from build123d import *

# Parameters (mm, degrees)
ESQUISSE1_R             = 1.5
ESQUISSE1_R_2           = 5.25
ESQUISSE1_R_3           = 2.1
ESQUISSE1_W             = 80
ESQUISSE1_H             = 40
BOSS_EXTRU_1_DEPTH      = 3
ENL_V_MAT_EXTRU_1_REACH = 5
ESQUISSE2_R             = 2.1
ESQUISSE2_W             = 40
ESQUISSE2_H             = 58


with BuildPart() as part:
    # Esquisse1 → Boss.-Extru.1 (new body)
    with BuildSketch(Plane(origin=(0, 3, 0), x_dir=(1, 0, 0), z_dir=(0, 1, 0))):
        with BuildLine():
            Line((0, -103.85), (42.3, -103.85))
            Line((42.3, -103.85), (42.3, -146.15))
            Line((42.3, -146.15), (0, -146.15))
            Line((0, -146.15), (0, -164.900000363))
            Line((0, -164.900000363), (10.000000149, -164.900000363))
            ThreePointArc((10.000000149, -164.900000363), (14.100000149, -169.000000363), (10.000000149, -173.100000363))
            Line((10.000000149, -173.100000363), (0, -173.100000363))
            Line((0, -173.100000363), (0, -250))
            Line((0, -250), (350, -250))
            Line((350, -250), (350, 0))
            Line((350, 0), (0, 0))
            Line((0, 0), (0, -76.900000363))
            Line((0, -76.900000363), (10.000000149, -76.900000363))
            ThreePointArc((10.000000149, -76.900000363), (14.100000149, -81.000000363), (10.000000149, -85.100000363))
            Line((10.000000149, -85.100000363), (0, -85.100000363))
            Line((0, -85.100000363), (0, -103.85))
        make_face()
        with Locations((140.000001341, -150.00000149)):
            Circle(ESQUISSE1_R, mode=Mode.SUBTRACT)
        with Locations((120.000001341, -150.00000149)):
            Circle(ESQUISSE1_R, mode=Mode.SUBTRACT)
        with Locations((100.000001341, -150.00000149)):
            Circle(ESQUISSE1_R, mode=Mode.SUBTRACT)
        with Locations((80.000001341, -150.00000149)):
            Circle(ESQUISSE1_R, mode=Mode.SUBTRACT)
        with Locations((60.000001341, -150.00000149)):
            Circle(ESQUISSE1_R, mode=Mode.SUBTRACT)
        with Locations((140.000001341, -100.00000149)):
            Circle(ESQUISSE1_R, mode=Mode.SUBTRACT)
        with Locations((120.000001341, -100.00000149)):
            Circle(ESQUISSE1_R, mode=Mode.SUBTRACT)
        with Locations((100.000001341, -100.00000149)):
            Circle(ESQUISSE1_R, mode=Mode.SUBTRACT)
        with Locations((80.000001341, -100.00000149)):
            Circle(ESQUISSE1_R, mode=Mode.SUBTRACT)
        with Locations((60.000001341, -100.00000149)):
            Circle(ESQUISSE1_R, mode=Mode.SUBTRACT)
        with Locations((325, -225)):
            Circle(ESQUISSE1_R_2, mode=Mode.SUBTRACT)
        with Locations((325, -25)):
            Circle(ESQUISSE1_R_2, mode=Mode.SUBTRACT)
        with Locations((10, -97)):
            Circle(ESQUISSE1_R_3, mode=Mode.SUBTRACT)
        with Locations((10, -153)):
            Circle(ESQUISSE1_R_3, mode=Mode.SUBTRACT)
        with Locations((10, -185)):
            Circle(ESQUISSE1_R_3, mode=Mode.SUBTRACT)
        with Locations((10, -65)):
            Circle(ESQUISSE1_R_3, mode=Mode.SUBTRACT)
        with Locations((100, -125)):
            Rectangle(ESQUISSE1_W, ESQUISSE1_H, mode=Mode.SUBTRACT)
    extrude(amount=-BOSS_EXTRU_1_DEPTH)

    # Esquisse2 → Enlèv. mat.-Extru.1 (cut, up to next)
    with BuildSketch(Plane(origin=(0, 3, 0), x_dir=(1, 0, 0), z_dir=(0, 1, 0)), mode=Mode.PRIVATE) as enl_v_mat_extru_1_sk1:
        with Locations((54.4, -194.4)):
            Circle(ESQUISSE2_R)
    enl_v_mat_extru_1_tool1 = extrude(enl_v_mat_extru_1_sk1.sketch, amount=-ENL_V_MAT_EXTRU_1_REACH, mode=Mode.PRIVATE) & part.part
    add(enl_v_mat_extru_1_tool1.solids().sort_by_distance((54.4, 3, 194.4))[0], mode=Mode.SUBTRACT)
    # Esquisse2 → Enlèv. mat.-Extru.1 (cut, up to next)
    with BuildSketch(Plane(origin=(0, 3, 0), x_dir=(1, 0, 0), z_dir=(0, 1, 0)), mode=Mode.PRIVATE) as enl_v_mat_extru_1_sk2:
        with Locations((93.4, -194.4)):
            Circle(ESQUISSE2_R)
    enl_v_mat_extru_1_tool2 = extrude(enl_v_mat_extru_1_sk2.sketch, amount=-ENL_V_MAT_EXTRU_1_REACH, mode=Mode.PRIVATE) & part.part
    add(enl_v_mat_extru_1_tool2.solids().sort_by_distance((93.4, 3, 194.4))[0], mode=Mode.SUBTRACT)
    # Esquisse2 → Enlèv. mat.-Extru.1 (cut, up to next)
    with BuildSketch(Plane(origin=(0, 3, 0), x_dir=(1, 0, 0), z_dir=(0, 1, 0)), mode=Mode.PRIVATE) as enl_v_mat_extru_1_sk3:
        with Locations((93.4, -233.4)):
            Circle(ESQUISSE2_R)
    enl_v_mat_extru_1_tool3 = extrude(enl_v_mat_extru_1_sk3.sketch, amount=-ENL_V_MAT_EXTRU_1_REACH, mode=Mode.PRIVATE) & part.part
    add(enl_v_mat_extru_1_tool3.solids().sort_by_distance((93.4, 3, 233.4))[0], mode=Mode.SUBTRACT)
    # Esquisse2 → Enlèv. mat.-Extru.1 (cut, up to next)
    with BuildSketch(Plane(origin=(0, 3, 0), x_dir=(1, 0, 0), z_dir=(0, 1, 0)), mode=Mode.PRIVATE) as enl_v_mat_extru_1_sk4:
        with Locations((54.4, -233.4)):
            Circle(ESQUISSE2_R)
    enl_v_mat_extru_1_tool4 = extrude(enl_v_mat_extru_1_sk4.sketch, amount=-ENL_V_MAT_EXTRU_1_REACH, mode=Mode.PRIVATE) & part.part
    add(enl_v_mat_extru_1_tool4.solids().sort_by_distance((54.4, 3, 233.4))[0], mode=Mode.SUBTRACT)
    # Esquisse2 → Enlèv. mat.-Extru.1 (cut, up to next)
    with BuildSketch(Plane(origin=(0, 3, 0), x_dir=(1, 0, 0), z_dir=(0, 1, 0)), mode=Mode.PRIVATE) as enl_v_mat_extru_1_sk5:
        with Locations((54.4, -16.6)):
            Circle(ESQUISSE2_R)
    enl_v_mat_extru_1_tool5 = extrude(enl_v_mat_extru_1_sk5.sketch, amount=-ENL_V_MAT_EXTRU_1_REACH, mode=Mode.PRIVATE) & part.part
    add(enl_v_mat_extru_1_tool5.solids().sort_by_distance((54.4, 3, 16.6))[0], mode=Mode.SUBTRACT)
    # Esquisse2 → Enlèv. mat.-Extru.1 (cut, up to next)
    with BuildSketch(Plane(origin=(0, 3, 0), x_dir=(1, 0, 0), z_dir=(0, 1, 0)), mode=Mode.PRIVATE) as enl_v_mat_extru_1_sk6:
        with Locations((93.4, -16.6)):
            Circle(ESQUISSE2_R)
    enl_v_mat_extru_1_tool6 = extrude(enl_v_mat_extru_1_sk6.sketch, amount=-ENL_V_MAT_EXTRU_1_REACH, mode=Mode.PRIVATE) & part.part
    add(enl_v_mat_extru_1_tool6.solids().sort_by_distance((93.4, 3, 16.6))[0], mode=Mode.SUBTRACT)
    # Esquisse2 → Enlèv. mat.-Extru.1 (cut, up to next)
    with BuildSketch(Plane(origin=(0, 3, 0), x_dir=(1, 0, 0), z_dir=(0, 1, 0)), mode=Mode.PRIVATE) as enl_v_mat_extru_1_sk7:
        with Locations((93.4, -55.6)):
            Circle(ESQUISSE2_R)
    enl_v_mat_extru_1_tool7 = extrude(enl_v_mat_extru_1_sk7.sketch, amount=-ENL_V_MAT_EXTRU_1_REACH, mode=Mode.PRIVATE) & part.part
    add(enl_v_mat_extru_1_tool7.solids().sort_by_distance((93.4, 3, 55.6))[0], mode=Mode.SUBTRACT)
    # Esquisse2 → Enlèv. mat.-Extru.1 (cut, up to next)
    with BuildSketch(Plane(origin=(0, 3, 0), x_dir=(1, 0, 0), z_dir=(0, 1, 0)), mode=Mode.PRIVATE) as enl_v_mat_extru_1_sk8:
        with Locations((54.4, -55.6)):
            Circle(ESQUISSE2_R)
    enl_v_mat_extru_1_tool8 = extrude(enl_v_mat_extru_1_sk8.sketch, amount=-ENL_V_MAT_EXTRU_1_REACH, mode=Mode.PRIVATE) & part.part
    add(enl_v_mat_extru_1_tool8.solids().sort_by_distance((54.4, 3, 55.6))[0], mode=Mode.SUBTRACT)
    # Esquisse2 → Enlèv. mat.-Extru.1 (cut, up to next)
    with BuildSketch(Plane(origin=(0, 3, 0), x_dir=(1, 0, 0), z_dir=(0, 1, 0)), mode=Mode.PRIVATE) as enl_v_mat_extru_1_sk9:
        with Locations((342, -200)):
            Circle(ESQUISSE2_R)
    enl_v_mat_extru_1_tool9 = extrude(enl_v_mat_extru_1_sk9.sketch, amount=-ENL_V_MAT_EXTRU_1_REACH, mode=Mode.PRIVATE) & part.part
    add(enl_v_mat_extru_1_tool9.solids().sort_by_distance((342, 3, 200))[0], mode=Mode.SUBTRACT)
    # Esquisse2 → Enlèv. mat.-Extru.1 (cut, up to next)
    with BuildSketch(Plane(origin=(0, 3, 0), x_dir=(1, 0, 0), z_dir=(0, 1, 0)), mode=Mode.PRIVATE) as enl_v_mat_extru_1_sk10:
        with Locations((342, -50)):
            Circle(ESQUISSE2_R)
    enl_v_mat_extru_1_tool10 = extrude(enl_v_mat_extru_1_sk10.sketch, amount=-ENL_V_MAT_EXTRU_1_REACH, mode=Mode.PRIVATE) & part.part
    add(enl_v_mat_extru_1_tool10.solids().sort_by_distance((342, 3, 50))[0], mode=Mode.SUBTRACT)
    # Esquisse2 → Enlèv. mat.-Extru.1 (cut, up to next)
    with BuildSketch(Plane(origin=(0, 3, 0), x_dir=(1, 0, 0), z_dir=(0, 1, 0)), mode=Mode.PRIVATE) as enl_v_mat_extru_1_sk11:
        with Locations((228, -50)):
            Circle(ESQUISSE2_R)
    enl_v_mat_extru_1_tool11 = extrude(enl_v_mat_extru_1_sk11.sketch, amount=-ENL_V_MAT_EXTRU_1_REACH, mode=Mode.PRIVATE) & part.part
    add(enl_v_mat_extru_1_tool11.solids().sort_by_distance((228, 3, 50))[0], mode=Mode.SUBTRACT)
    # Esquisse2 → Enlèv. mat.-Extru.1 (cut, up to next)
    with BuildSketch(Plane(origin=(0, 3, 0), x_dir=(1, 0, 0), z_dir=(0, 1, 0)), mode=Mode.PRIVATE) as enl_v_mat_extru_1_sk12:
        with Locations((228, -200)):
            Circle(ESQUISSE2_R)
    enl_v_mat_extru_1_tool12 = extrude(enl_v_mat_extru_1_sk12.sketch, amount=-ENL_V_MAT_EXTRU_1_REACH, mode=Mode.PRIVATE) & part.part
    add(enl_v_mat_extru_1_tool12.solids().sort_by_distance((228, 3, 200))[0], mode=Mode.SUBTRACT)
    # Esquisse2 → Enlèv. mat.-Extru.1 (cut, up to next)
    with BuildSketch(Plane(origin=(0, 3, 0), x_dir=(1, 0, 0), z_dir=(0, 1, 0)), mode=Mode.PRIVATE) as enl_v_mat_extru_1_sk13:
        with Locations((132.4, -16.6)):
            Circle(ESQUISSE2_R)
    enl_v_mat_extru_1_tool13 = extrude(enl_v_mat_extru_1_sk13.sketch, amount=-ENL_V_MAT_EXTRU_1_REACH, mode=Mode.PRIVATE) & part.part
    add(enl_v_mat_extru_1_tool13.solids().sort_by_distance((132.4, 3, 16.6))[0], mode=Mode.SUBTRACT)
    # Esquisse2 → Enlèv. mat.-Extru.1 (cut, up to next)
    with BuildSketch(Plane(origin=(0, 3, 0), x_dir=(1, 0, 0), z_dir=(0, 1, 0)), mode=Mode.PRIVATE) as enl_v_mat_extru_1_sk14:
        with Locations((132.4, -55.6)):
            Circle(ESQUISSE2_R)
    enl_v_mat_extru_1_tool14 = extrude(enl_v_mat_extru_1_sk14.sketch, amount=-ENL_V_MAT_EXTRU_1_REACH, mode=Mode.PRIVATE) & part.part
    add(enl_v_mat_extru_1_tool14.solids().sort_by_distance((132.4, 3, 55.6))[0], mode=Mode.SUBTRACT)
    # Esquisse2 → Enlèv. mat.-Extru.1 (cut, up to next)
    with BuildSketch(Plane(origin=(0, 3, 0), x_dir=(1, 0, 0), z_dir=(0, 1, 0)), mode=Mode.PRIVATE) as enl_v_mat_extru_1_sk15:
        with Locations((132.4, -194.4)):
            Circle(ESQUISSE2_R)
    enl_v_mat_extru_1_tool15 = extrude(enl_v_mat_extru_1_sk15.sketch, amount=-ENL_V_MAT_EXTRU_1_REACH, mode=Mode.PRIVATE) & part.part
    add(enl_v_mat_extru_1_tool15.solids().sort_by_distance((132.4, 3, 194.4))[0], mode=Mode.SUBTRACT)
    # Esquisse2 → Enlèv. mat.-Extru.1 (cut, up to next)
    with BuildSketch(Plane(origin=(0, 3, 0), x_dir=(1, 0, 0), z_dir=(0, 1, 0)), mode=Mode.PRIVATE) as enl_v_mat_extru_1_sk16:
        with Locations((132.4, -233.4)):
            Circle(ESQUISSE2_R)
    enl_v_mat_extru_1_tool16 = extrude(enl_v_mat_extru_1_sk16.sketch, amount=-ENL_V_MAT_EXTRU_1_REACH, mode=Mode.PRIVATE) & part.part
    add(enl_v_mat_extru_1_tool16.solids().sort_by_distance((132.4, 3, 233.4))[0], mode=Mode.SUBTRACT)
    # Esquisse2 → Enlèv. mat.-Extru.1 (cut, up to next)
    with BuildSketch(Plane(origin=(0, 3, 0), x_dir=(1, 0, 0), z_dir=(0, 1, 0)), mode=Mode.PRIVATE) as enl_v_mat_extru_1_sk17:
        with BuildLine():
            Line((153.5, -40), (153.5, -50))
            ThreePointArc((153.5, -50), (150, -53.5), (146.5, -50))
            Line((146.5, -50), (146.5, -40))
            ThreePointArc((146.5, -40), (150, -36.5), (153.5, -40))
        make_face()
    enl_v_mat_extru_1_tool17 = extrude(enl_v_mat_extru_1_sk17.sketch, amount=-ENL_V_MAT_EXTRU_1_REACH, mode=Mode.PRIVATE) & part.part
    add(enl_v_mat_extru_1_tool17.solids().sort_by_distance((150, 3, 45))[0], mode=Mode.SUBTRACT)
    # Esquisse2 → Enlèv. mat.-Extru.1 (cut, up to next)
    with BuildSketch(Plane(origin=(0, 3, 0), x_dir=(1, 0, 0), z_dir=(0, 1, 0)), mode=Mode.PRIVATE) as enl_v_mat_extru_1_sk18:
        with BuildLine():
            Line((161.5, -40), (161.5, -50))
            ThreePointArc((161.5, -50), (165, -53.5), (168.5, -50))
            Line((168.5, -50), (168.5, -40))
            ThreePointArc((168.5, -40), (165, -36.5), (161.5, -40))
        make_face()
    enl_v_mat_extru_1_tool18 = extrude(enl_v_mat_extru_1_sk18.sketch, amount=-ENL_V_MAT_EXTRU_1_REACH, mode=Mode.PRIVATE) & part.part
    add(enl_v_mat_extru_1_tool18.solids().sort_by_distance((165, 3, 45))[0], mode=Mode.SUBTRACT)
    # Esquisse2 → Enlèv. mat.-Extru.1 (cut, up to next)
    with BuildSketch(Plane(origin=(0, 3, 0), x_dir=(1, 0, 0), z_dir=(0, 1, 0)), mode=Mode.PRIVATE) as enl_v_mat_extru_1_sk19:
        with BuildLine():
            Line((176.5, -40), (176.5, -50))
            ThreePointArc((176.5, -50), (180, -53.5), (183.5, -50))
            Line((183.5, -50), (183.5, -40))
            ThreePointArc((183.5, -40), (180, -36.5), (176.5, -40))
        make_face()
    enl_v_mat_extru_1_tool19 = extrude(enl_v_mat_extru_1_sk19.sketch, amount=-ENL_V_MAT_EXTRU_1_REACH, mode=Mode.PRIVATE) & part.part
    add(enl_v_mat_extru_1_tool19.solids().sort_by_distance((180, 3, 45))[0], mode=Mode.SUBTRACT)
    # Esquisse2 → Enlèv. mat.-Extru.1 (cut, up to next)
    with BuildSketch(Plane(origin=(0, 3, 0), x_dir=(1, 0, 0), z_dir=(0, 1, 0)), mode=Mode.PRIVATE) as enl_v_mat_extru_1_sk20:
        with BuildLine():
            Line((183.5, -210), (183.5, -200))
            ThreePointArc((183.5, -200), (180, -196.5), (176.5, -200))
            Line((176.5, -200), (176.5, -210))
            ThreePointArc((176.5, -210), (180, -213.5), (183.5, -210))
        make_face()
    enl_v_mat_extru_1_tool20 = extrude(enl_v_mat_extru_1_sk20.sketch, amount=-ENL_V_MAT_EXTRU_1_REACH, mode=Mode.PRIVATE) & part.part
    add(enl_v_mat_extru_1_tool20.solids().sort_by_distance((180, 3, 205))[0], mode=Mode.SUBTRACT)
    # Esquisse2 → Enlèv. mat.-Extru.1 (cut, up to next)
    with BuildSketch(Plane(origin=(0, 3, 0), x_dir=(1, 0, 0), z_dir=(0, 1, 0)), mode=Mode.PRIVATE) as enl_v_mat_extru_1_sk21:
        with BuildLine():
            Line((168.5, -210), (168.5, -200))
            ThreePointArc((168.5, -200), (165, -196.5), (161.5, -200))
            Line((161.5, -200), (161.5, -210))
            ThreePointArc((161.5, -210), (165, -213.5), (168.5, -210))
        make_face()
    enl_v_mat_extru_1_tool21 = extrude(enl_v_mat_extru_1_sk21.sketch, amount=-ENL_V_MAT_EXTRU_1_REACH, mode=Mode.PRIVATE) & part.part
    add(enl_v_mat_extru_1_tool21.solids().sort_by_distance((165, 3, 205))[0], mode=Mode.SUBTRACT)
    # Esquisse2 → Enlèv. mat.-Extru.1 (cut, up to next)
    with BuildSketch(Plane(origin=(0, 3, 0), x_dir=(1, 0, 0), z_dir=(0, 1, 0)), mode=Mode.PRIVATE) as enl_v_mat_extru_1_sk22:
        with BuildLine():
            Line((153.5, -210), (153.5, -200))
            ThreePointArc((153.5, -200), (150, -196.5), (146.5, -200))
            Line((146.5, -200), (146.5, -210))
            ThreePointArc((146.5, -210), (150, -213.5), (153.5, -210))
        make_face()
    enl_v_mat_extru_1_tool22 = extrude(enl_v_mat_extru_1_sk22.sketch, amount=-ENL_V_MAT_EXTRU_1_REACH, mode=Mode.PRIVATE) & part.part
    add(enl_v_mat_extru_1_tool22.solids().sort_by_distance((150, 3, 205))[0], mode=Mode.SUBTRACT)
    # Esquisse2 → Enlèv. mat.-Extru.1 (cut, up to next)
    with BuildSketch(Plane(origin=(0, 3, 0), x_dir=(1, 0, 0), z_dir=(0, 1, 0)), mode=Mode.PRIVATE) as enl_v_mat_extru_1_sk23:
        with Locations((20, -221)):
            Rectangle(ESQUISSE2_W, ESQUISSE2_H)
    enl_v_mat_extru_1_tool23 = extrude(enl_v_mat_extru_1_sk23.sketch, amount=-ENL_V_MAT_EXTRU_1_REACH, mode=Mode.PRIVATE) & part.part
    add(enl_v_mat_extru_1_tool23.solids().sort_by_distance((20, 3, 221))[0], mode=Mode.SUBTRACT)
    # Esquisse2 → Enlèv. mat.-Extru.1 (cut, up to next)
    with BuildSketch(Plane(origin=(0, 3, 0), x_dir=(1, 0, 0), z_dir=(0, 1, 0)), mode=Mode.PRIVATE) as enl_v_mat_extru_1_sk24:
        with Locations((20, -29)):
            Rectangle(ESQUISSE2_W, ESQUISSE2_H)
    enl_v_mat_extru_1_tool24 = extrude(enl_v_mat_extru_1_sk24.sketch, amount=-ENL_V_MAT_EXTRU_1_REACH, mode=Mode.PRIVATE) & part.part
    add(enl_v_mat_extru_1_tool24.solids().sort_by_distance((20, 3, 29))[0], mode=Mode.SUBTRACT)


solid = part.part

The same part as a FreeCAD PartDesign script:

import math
import FreeCAD as App
import Part
import Sketcher

doc = App.newDocument("Part")
body = doc.addObject("PartDesign::Body", "Body")

# Sketch on XZ plane
sketch1 = body.newObject("Sketcher::SketchObject", "Sketch")
sketch1.AttachmentSupport = (doc.getObject("XZ_Plane"), [""])
sketch1.MapMode = "FlatFace"
sketch1.AttachmentOffset = App.Placement(App.Vector(0, 0, -3), App.Rotation())
sketch1.addGeometry([
    Part.LineSegment(App.Vector(0, 103.8, 0), App.Vector(42.3, 103.8, 0)),  # 0
    Part.LineSegment(App.Vector(42.3, 103.8, 0), App.Vector(42.3, 146.2, 0)),  # 1
    Part.LineSegment(App.Vector(42.3, 146.2, 0), App.Vector(0, 146.2, 0)),  # 2
    Part.LineSegment(App.Vector(0, 146.2, 0), App.Vector(0, 164.9, 0)),  # 3
    Part.LineSegment(App.Vector(0, 164.9, 0), App.Vector(10, 164.9, 0)),  # 4
    Part.ArcOfCircle(Part.Circle(App.Vector(10, 169, 0), App.Vector(0, 0, 1), 4.1), math.radians(-90), math.radians(90)),  # 5
    Part.LineSegment(App.Vector(10, 173.1, 0), App.Vector(0, 173.1, 0)),  # 6
    Part.LineSegment(App.Vector(0, 173.1, 0), App.Vector(0, 250, 0)),  # 7
    Part.LineSegment(App.Vector(0, 250, 0), App.Vector(350, 250, 0)),  # 8
    Part.LineSegment(App.Vector(350, 250, 0), App.Vector(350, 0, 0)),  # 9
    Part.LineSegment(App.Vector(350, 0, 0), App.Vector(0, 0, 0)),  # 10
    Part.LineSegment(App.Vector(0, 0, 0), App.Vector(0, 76.9, 0)),  # 11
    Part.LineSegment(App.Vector(0, 76.9, 0), App.Vector(10, 76.9, 0)),  # 12
    Part.ArcOfCircle(Part.Circle(App.Vector(10, 81, 0), App.Vector(0, 0, 1), 4.1), math.radians(-90), math.radians(90)),  # 13
    Part.LineSegment(App.Vector(10, 85.1, 0), App.Vector(0, 85.1, 0)),  # 14
    Part.LineSegment(App.Vector(0, 85.1, 0), App.Vector(0, 103.8, 0)),  # 15
    Part.Circle(App.Vector(10, 185, 0), App.Vector(0, 0, 1), 2.1),  # 16
    Part.Circle(App.Vector(10, 153, 0), App.Vector(0, 0, 1), 2.1),  # 17
    Part.Circle(App.Vector(60, 150, 0), App.Vector(0, 0, 1), 1.5),  # 18
    Part.Circle(App.Vector(80, 150, 0), App.Vector(0, 0, 1), 1.5),  # 19
    Part.Circle(App.Vector(100, 150, 0), App.Vector(0, 0, 1), 1.5),  # 20
    Part.Circle(App.Vector(120, 150, 0), App.Vector(0, 0, 1), 1.5),  # 21
    Part.Circle(App.Vector(140, 150, 0), App.Vector(0, 0, 1), 1.5),  # 22
    Part.Circle(App.Vector(325, 225, 0), App.Vector(0, 0, 1), 5.2),  # 23
    Part.Circle(App.Vector(60, 100, 0), App.Vector(0, 0, 1), 1.5),  # 24
    Part.Circle(App.Vector(80, 100, 0), App.Vector(0, 0, 1), 1.5),  # 25
    Part.Circle(App.Vector(10, 97, 0), App.Vector(0, 0, 1), 2.1),  # 26
    Part.LineSegment(App.Vector(140, 145, 0), App.Vector(60, 145, 0)),  # 27
    Part.LineSegment(App.Vector(60, 145, 0), App.Vector(60, 105, 0)),  # 28
    Part.LineSegment(App.Vector(60, 105, 0), App.Vector(140, 105, 0)),  # 29
    Part.LineSegment(App.Vector(140, 105, 0), App.Vector(140, 145, 0)),  # 30
    Part.Circle(App.Vector(100, 100, 0), App.Vector(0, 0, 1), 1.5),  # 31
    Part.Circle(App.Vector(120, 100, 0), App.Vector(0, 0, 1), 1.5),  # 32
    Part.Circle(App.Vector(140, 100, 0), App.Vector(0, 0, 1), 1.5),  # 33
    Part.Circle(App.Vector(10, 65, 0), App.Vector(0, 0, 1), 2.1),  # 34
    Part.Circle(App.Vector(325, 25, 0), App.Vector(0, 0, 1), 5.2),  # 35
], False)
sketch1.addConstraint([
    Sketcher.Constraint("Coincident", 0, 2, 1, 1),
    Sketcher.Constraint("Coincident", 1, 2, 2, 1),
    Sketcher.Constraint("Coincident", 2, 2, 3, 1),
    Sketcher.Constraint("Coincident", 3, 2, 4, 1),
    Sketcher.Constraint("Tangent", 4, 2, 5, 1),
    Sketcher.Constraint("Tangent", 5, 2, 6, 1),
    Sketcher.Constraint("Coincident", 6, 2, 7, 1),
    Sketcher.Constraint("Coincident", 7, 2, 8, 1),
    Sketcher.Constraint("Coincident", 8, 2, 9, 1),
    Sketcher.Constraint("Coincident", 9, 2, 10, 1),
    Sketcher.Constraint("Coincident", 10, 2, 11, 1),
    Sketcher.Constraint("Coincident", 11, 2, 12, 1),
    Sketcher.Constraint("Tangent", 12, 2, 13, 1),
    Sketcher.Constraint("Tangent", 13, 2, 14, 1),
    Sketcher.Constraint("Coincident", 14, 2, 15, 1),
    Sketcher.Constraint("Coincident", 15, 2, 0, 1),
    Sketcher.Constraint("Coincident", 27, 2, 28, 1),
    Sketcher.Constraint("Coincident", 28, 2, 29, 1),
    Sketcher.Constraint("Coincident", 29, 2, 30, 1),
    Sketcher.Constraint("Coincident", 30, 2, 27, 1),
    Sketcher.Constraint("Horizontal", 0),
    Sketcher.Constraint("Vertical", 1),
    Sketcher.Constraint("Horizontal", 2),
    Sketcher.Constraint("Vertical", 3),
    Sketcher.Constraint("Horizontal", 4),
    Sketcher.Constraint("Horizontal", 6),
    Sketcher.Constraint("Vertical", 7),
    Sketcher.Constraint("Horizontal", 8),
    Sketcher.Constraint("Vertical", 9),
    Sketcher.Constraint("Horizontal", 10),
    Sketcher.Constraint("Vertical", 11),
    Sketcher.Constraint("Horizontal", 12),
    Sketcher.Constraint("Horizontal", 14),
    Sketcher.Constraint("Vertical", 15),
    Sketcher.Constraint("Horizontal", 27),
    Sketcher.Constraint("Vertical", 28),
    Sketcher.Constraint("Horizontal", 29),
    Sketcher.Constraint("Vertical", 30),
    Sketcher.Constraint("Coincident", 10, 2, -1, 1),
    Sketcher.Constraint("Equal", 5, 13),
    Sketcher.Constraint("Equal", 16, 17),
    Sketcher.Constraint("Equal", 18, 19),
    Sketcher.Constraint("Equal", 19, 20),
    Sketcher.Constraint("Equal", 20, 21),
    Sketcher.Constraint("Equal", 21, 22),
    Sketcher.Constraint("Equal", 22, 24),
    Sketcher.Constraint("Equal", 24, 25),
    Sketcher.Constraint("Equal", 17, 26),
    Sketcher.Constraint("Equal", 25, 31),
    Sketcher.Constraint("Equal", 31, 32),
    Sketcher.Constraint("Equal", 32, 33),
    Sketcher.Constraint("Equal", 26, 34),
    Sketcher.Constraint("Equal", 23, 35),
    Sketcher.Constraint("PointOnObject", 2, 2, -2),
    Sketcher.Constraint("PointOnObject", 6, 2, -2),
    Sketcher.Constraint("PointOnObject", 14, 2, -2),
    Sketcher.Constraint("Horizontal", 18, 3, 19, 3),
    Sketcher.Constraint("Horizontal", 19, 3, 20, 3),
    Sketcher.Constraint("Horizontal", 20, 3, 21, 3),
    Sketcher.Constraint("Horizontal", 21, 3, 22, 3),
    Sketcher.Constraint("Horizontal", 24, 3, 25, 3),
    Sketcher.Constraint("Horizontal", 25, 3, 31, 3),
    Sketcher.Constraint("Horizontal", 31, 3, 32, 3),
    Sketcher.Constraint("Horizontal", 32, 3, 33, 3),
    Sketcher.Constraint("Vertical", 5, 3, 13, 3),
    Sketcher.Constraint("Vertical", 13, 3, 16, 3),
    Sketcher.Constraint("Vertical", 16, 3, 17, 3),
    Sketcher.Constraint("Vertical", 18, 3, 24, 3),
    Sketcher.Constraint("Vertical", 19, 3, 25, 3),
    Sketcher.Constraint("Vertical", 17, 3, 26, 3),
    Sketcher.Constraint("Vertical", 20, 3, 31, 3),
    Sketcher.Constraint("Vertical", 21, 3, 32, 3),
    Sketcher.Constraint("Vertical", 22, 3, 33, 3),
    Sketcher.Constraint("Vertical", 26, 3, 34, 3),
    Sketcher.Constraint("Vertical", 23, 3, 35, 3),
    Sketcher.Constraint("Vertical", 24, 3, 27, 2),
    Sketcher.Constraint("Vertical", 33, 3, 29, 2),
    Sketcher.Constraint("Equal", 2, 1),
    Sketcher.Constraint("Equal", 7, 11),
    Sketcher.Constraint("Equal", 3, 15),
    Sketcher.Constraint("Diameter", 18, 3.0),
    Sketcher.Constraint("Diameter", 16, 4.2),
    Sketcher.Constraint("Diameter", 23, 10.5),
    Sketcher.Constraint("Radius", 5, 4.1),
    Sketcher.Constraint("DistanceX", 4, 1, 4, 2, 10.0),
    Sketcher.Constraint("DistanceX", 8, 1, 8, 2, 350.0),
    Sketcher.Constraint("DistanceX", 27, 2, 27, 1, 80.0),
    Sketcher.Constraint("DistanceY", 9, 2, 9, 1, 250.0),
    Sketcher.Constraint("DistanceY", 28, 2, 28, 1, 40.0),
    Sketcher.Constraint("DistanceX", 0, 1, 0, 2, 42.3),
    Sketcher.Constraint("DistanceY", 7, 1, 7, 2, 76.9),
    Sketcher.Constraint("DistanceY", -1, 1, 16, 3, 185.0),
    Sketcher.Constraint("DistanceY", -1, 1, 17, 3, 153.0),
    Sketcher.Constraint("DistanceX", -1, 1, 18, 3, 60.000001),
    Sketcher.Constraint("DistanceY", -1, 1, 18, 3, 150.000001),
    Sketcher.Constraint("DistanceX", -1, 1, 19, 3, 80.000001),
    Sketcher.Constraint("DistanceX", -1, 1, 20, 3, 100.000001),
    Sketcher.Constraint("DistanceX", -1, 1, 21, 3, 120.000001),
    Sketcher.Constraint("DistanceX", -1, 1, 23, 3, 325.0),
    Sketcher.Constraint("DistanceY", -1, 1, 23, 3, 225.0),
    Sketcher.Constraint("DistanceY", -1, 1, 24, 3, 100.000001),
    Sketcher.Constraint("DistanceY", -1, 1, 26, 3, 97.0),
    Sketcher.Constraint("DistanceY", -1, 1, 34, 3, 65.0),
    Sketcher.Constraint("DistanceY", -1, 1, 35, 3, 25.0),
    Sketcher.Constraint("DistanceY", -1, 1, 27, 2, 145.0),
])
pad1 = body.newObject("PartDesign::Pad", "Pad")
pad1.Profile = sketch1
pad1.Length = 3

# Sketch on XZ plane
sketch2 = body.newObject("Sketcher::SketchObject", "Sketch001")
sketch2.AttachmentSupport = (doc.getObject("XZ_Plane"), [""])
sketch2.MapMode = "FlatFace"
sketch2.AttachmentOffset = App.Placement(App.Vector(0, 0, -3), App.Rotation())
sketch2.addGeometry(Part.Circle(App.Vector(54.4, 194.4, 0), App.Vector(0, 0, 1), 2.1), False)
sketch2.addConstraint([
    Sketcher.Constraint("Diameter", 0, 4.2),
    Sketcher.Constraint("DistanceX", -1, 1, 0, 3, 54.4),
    Sketcher.Constraint("DistanceY", -1, 1, 0, 3, 194.4),
])
pocket1 = body.newObject("PartDesign::Pocket", "Pocket")
pocket1.Profile = sketch2
pocket1.Type = "UpToFirst"
pocket1.Reversed = True

# Sketch on XZ plane
sketch3 = body.newObject("Sketcher::SketchObject", "Sketch002")
sketch3.AttachmentSupport = (doc.getObject("XZ_Plane"), [""])
sketch3.MapMode = "FlatFace"
sketch3.AttachmentOffset = App.Placement(App.Vector(0, 0, -3), App.Rotation())
sketch3.addGeometry(Part.Circle(App.Vector(93.4, 194.4, 0), App.Vector(0, 0, 1), 2.1), False)
sketch3.addConstraint([
    Sketcher.Constraint("Diameter", 0, 4.2),
    Sketcher.Constraint("DistanceX", -1, 1, 0, 3, 93.4),
    Sketcher.Constraint("DistanceY", -1, 1, 0, 3, 194.4),
])
pocket2 = body.newObject("PartDesign::Pocket", "Pocket001")
pocket2.Profile = sketch3
pocket2.Type = "UpToFirst"
pocket2.Reversed = True

# Sketch on XZ plane
sketch4 = body.newObject("Sketcher::SketchObject", "Sketch003")
sketch4.AttachmentSupport = (doc.getObject("XZ_Plane"), [""])
sketch4.MapMode = "FlatFace"
sketch4.AttachmentOffset = App.Placement(App.Vector(0, 0, -3), App.Rotation())
sketch4.addGeometry(Part.Circle(App.Vector(93.4, 233.4, 0), App.Vector(0, 0, 1), 2.1), False)
sketch4.addConstraint([
    Sketcher.Constraint("Diameter", 0, 4.2),
    Sketcher.Constraint("DistanceX", -1, 1, 0, 3, 93.4),
    Sketcher.Constraint("DistanceY", -1, 1, 0, 3, 233.4),
])
pocket3 = body.newObject("PartDesign::Pocket", "Pocket002")
pocket3.Profile = sketch4
pocket3.Type = "UpToFirst"
pocket3.Reversed = True

# Sketch on XZ plane
sketch5 = body.newObject("Sketcher::SketchObject", "Sketch004")
sketch5.AttachmentSupport = (doc.getObject("XZ_Plane"), [""])
sketch5.MapMode = "FlatFace"
sketch5.AttachmentOffset = App.Placement(App.Vector(0, 0, -3), App.Rotation())
sketch5.addGeometry(Part.Circle(App.Vector(54.4, 233.4, 0), App.Vector(0, 0, 1), 2.1), False)
sketch5.addConstraint([
    Sketcher.Constraint("Diameter", 0, 4.2),
    Sketcher.Constraint("DistanceX", -1, 1, 0, 3, 54.4),
    Sketcher.Constraint("DistanceY", -1, 1, 0, 3, 233.4),
])
pocket4 = body.newObject("PartDesign::Pocket", "Pocket003")
pocket4.Profile = sketch5
pocket4.Type = "UpToFirst"
pocket4.Reversed = True

# Sketch on XZ plane
sketch6 = body.newObject("Sketcher::SketchObject", "Sketch005")
sketch6.AttachmentSupport = (doc.getObject("XZ_Plane"), [""])
sketch6.MapMode = "FlatFace"
sketch6.AttachmentOffset = App.Placement(App.Vector(0, 0, -3), App.Rotation())
sketch6.addGeometry(Part.Circle(App.Vector(54.4, 16.6, 0), App.Vector(0, 0, 1), 2.1), False)
sketch6.addConstraint([
    Sketcher.Constraint("Diameter", 0, 4.2),
    Sketcher.Constraint("DistanceX", -1, 1, 0, 3, 54.4),
    Sketcher.Constraint("DistanceY", -1, 1, 0, 3, 16.6),
])
pocket5 = body.newObject("PartDesign::Pocket", "Pocket004")
pocket5.Profile = sketch6
pocket5.Type = "UpToFirst"
pocket5.Reversed = True

# Sketch on XZ plane
sketch7 = body.newObject("Sketcher::SketchObject", "Sketch006")
sketch7.AttachmentSupport = (doc.getObject("XZ_Plane"), [""])
sketch7.MapMode = "FlatFace"
sketch7.AttachmentOffset = App.Placement(App.Vector(0, 0, -3), App.Rotation())
sketch7.addGeometry(Part.Circle(App.Vector(93.4, 16.6, 0), App.Vector(0, 0, 1), 2.1), False)
sketch7.addConstraint([
    Sketcher.Constraint("Diameter", 0, 4.2),
    Sketcher.Constraint("DistanceX", -1, 1, 0, 3, 93.4),
    Sketcher.Constraint("DistanceY", -1, 1, 0, 3, 16.6),
])
pocket6 = body.newObject("PartDesign::Pocket", "Pocket005")
pocket6.Profile = sketch7
pocket6.Type = "UpToFirst"
pocket6.Reversed = True

# Sketch on XZ plane
sketch8 = body.newObject("Sketcher::SketchObject", "Sketch007")
sketch8.AttachmentSupport = (doc.getObject("XZ_Plane"), [""])
sketch8.MapMode = "FlatFace"
sketch8.AttachmentOffset = App.Placement(App.Vector(0, 0, -3), App.Rotation())
sketch8.addGeometry(Part.Circle(App.Vector(93.4, 55.6, 0), App.Vector(0, 0, 1), 2.1), False)
sketch8.addConstraint([
    Sketcher.Constraint("Diameter", 0, 4.2),
    Sketcher.Constraint("DistanceX", -1, 1, 0, 3, 93.4),
    Sketcher.Constraint("DistanceY", -1, 1, 0, 3, 55.6),
])
pocket7 = body.newObject("PartDesign::Pocket", "Pocket006")
pocket7.Profile = sketch8
pocket7.Type = "UpToFirst"
pocket7.Reversed = True

# Sketch on XZ plane
sketch9 = body.newObject("Sketcher::SketchObject", "Sketch008")
sketch9.AttachmentSupport = (doc.getObject("XZ_Plane"), [""])
sketch9.MapMode = "FlatFace"
sketch9.AttachmentOffset = App.Placement(App.Vector(0, 0, -3), App.Rotation())
sketch9.addGeometry(Part.Circle(App.Vector(54.4, 55.6, 0), App.Vector(0, 0, 1), 2.1), False)
sketch9.addConstraint([
    Sketcher.Constraint("Diameter", 0, 4.2),
    Sketcher.Constraint("DistanceX", -1, 1, 0, 3, 54.4),
    Sketcher.Constraint("DistanceY", -1, 1, 0, 3, 55.6),
])
pocket8 = body.newObject("PartDesign::Pocket", "Pocket007")
pocket8.Profile = sketch9
pocket8.Type = "UpToFirst"
pocket8.Reversed = True

# Sketch on XZ plane
sketch10 = body.newObject("Sketcher::SketchObject", "Sketch009")
sketch10.AttachmentSupport = (doc.getObject("XZ_Plane"), [""])
sketch10.MapMode = "FlatFace"
sketch10.AttachmentOffset = App.Placement(App.Vector(0, 0, -3), App.Rotation())
sketch10.addGeometry(Part.Circle(App.Vector(342, 200, 0), App.Vector(0, 0, 1), 2.1), False)
sketch10.addConstraint([
    Sketcher.Constraint("Diameter", 0, 4.2),
    Sketcher.Constraint("DistanceX", -1, 1, 0, 3, 342.0),
    Sketcher.Constraint("DistanceY", -1, 1, 0, 3, 200.0),
])
pocket9 = body.newObject("PartDesign::Pocket", "Pocket008")
pocket9.Profile = sketch10
pocket9.Type = "UpToFirst"
pocket9.Reversed = True

# Sketch on XZ plane
sketch11 = body.newObject("Sketcher::SketchObject", "Sketch010")
sketch11.AttachmentSupport = (doc.getObject("XZ_Plane"), [""])
sketch11.MapMode = "FlatFace"
sketch11.AttachmentOffset = App.Placement(App.Vector(0, 0, -3), App.Rotation())
sketch11.addGeometry(Part.Circle(App.Vector(342, 50, 0), App.Vector(0, 0, 1), 2.1), False)
sketch11.addConstraint([
    Sketcher.Constraint("Diameter", 0, 4.2),
    Sketcher.Constraint("DistanceX", -1, 1, 0, 3, 342.0),
    Sketcher.Constraint("DistanceY", -1, 1, 0, 3, 50.0),
])
pocket10 = body.newObject("PartDesign::Pocket", "Pocket009")
pocket10.Profile = sketch11
pocket10.Type = "UpToFirst"
pocket10.Reversed = True

# Sketch on XZ plane
sketch12 = body.newObject("Sketcher::SketchObject", "Sketch011")
sketch12.AttachmentSupport = (doc.getObject("XZ_Plane"), [""])
sketch12.MapMode = "FlatFace"
sketch12.AttachmentOffset = App.Placement(App.Vector(0, 0, -3), App.Rotation())
sketch12.addGeometry(Part.Circle(App.Vector(228, 50, 0), App.Vector(0, 0, 1), 2.1), False)
sketch12.addConstraint([
    Sketcher.Constraint("Diameter", 0, 4.2),
    Sketcher.Constraint("DistanceX", -1, 1, 0, 3, 228.0),
    Sketcher.Constraint("DistanceY", -1, 1, 0, 3, 50.0),
])
pocket11 = body.newObject("PartDesign::Pocket", "Pocket010")
pocket11.Profile = sketch12
pocket11.Type = "UpToFirst"
pocket11.Reversed = True

# Sketch on XZ plane
sketch13 = body.newObject("Sketcher::SketchObject", "Sketch012")
sketch13.AttachmentSupport = (doc.getObject("XZ_Plane"), [""])
sketch13.MapMode = "FlatFace"
sketch13.AttachmentOffset = App.Placement(App.Vector(0, 0, -3), App.Rotation())
sketch13.addGeometry(Part.Circle(App.Vector(228, 200, 0), App.Vector(0, 0, 1), 2.1), False)
sketch13.addConstraint([
    Sketcher.Constraint("Diameter", 0, 4.2),
    Sketcher.Constraint("DistanceX", -1, 1, 0, 3, 228.0),
    Sketcher.Constraint("DistanceY", -1, 1, 0, 3, 200.0),
])
pocket12 = body.newObject("PartDesign::Pocket", "Pocket011")
pocket12.Profile = sketch13
pocket12.Type = "UpToFirst"
pocket12.Reversed = True

# Sketch on XZ plane
sketch14 = body.newObject("Sketcher::SketchObject", "Sketch013")
sketch14.AttachmentSupport = (doc.getObject("XZ_Plane"), [""])
sketch14.MapMode = "FlatFace"
sketch14.AttachmentOffset = App.Placement(App.Vector(0, 0, -3), App.Rotation())
sketch14.addGeometry(Part.Circle(App.Vector(132.4, 16.6, 0), App.Vector(0, 0, 1), 2.1), False)
sketch14.addConstraint([
    Sketcher.Constraint("Diameter", 0, 4.2),
    Sketcher.Constraint("DistanceX", -1, 1, 0, 3, 132.4),
    Sketcher.Constraint("DistanceY", -1, 1, 0, 3, 16.6),
])
pocket13 = body.newObject("PartDesign::Pocket", "Pocket012")
pocket13.Profile = sketch14
pocket13.Type = "UpToFirst"
pocket13.Reversed = True

# Sketch on XZ plane
sketch15 = body.newObject("Sketcher::SketchObject", "Sketch014")
sketch15.AttachmentSupport = (doc.getObject("XZ_Plane"), [""])
sketch15.MapMode = "FlatFace"
sketch15.AttachmentOffset = App.Placement(App.Vector(0, 0, -3), App.Rotation())
sketch15.addGeometry(Part.Circle(App.Vector(132.4, 55.6, 0), App.Vector(0, 0, 1), 2.1), False)
sketch15.addConstraint([
    Sketcher.Constraint("Diameter", 0, 4.2),
    Sketcher.Constraint("DistanceX", -1, 1, 0, 3, 132.4),
    Sketcher.Constraint("DistanceY", -1, 1, 0, 3, 55.6),
])
pocket14 = body.newObject("PartDesign::Pocket", "Pocket013")
pocket14.Profile = sketch15
pocket14.Type = "UpToFirst"
pocket14.Reversed = True

# Sketch on XZ plane
sketch16 = body.newObject("Sketcher::SketchObject", "Sketch015")
sketch16.AttachmentSupport = (doc.getObject("XZ_Plane"), [""])
sketch16.MapMode = "FlatFace"
sketch16.AttachmentOffset = App.Placement(App.Vector(0, 0, -3), App.Rotation())
sketch16.addGeometry(Part.Circle(App.Vector(132.4, 194.4, 0), App.Vector(0, 0, 1), 2.1), False)
sketch16.addConstraint([
    Sketcher.Constraint("Diameter", 0, 4.2),
    Sketcher.Constraint("DistanceX", -1, 1, 0, 3, 132.4),
    Sketcher.Constraint("DistanceY", -1, 1, 0, 3, 194.4),
])
pocket15 = body.newObject("PartDesign::Pocket", "Pocket014")
pocket15.Profile = sketch16
pocket15.Type = "UpToFirst"
pocket15.Reversed = True

# Sketch on XZ plane
sketch17 = body.newObject("Sketcher::SketchObject", "Sketch016")
sketch17.AttachmentSupport = (doc.getObject("XZ_Plane"), [""])
sketch17.MapMode = "FlatFace"
sketch17.AttachmentOffset = App.Placement(App.Vector(0, 0, -3), App.Rotation())
sketch17.addGeometry(Part.Circle(App.Vector(132.4, 233.4, 0), App.Vector(0, 0, 1), 2.1), False)
sketch17.addConstraint([
    Sketcher.Constraint("Diameter", 0, 4.2),
    Sketcher.Constraint("DistanceX", -1, 1, 0, 3, 132.4),
    Sketcher.Constraint("DistanceY", -1, 1, 0, 3, 233.4),
])
pocket16 = body.newObject("PartDesign::Pocket", "Pocket015")
pocket16.Profile = sketch17
pocket16.Type = "UpToFirst"
pocket16.Reversed = True

# Sketch on XZ plane
sketch18 = body.newObject("Sketcher::SketchObject", "Sketch017")
sketch18.AttachmentSupport = (doc.getObject("XZ_Plane"), [""])
sketch18.MapMode = "FlatFace"
sketch18.AttachmentOffset = App.Placement(App.Vector(0, 0, -3), App.Rotation())
sketch18.addGeometry([
    Part.LineSegment(App.Vector(153.5, 50, 0), App.Vector(153.5, 40, 0)),
    Part.ArcOfCircle(Part.Circle(App.Vector(150, 40, 0), App.Vector(0, 0, 1), 3.5), math.radians(180), math.radians(360)),
    Part.LineSegment(App.Vector(146.5, 40, 0), App.Vector(146.5, 50, 0)),
    Part.ArcOfCircle(Part.Circle(App.Vector(150, 50, 0), App.Vector(0, 0, 1), 3.5), math.radians(0), math.radians(180)),
], False)
sketch18.addConstraint([
    Sketcher.Constraint("Tangent", 0, 2, 1, 2),
    Sketcher.Constraint("Tangent", 1, 1, 2, 1),
    Sketcher.Constraint("Tangent", 2, 2, 3, 2),
    Sketcher.Constraint("Tangent", 3, 1, 0, 1),
    Sketcher.Constraint("Vertical", 0),
    Sketcher.Constraint("Vertical", 2),
    Sketcher.Constraint("Radius", 1, 3.5),
    Sketcher.Constraint("DistanceY", 0, 2, 0, 1, 10.0),
    Sketcher.Constraint("DistanceX", -1, 1, 1, 3, 150.0),
    Sketcher.Constraint("DistanceY", -1, 1, 1, 3, 40.0),
])
pocket17 = body.newObject("PartDesign::Pocket", "Pocket016")
pocket17.Profile = sketch18
pocket17.Type = "UpToFirst"
pocket17.Reversed = True

# Sketch on XZ plane
sketch19 = body.newObject("Sketcher::SketchObject", "Sketch018")
sketch19.AttachmentSupport = (doc.getObject("XZ_Plane"), [""])
sketch19.MapMode = "FlatFace"
sketch19.AttachmentOffset = App.Placement(App.Vector(0, 0, -3), App.Rotation())
sketch19.addGeometry([
    Part.LineSegment(App.Vector(161.5, 40, 0), App.Vector(161.5, 50, 0)),
    Part.ArcOfCircle(Part.Circle(App.Vector(165, 50, 0), App.Vector(0, 0, 1), 3.5), math.radians(0), math.radians(180)),
    Part.LineSegment(App.Vector(168.5, 50, 0), App.Vector(168.5, 40, 0)),
    Part.ArcOfCircle(Part.Circle(App.Vector(165, 40, 0), App.Vector(0, 0, 1), 3.5), math.radians(180), math.radians(360)),
], False)
sketch19.addConstraint([
    Sketcher.Constraint("Tangent", 0, 2, 1, 2),
    Sketcher.Constraint("Tangent", 1, 1, 2, 1),
    Sketcher.Constraint("Tangent", 2, 2, 3, 2),
    Sketcher.Constraint("Tangent", 3, 1, 0, 1),
    Sketcher.Constraint("Vertical", 0),
    Sketcher.Constraint("Vertical", 2),
    Sketcher.Constraint("Radius", 1, 3.5),
    Sketcher.Constraint("DistanceY", 0, 1, 0, 2, 10.0),
    Sketcher.Constraint("DistanceX", -1, 1, 1, 3, 165.0),
    Sketcher.Constraint("DistanceY", -1, 1, 1, 3, 50.0),
])
pocket18 = body.newObject("PartDesign::Pocket", "Pocket017")
pocket18.Profile = sketch19
pocket18.Type = "UpToFirst"
pocket18.Reversed = True

# Sketch on XZ plane
sketch20 = body.newObject("Sketcher::SketchObject", "Sketch019")
sketch20.AttachmentSupport = (doc.getObject("XZ_Plane"), [""])
sketch20.MapMode = "FlatFace"
sketch20.AttachmentOffset = App.Placement(App.Vector(0, 0, -3), App.Rotation())
sketch20.addGeometry([
    Part.LineSegment(App.Vector(176.5, 40, 0), App.Vector(176.5, 50, 0)),
    Part.ArcOfCircle(Part.Circle(App.Vector(180, 50, 0), App.Vector(0, 0, 1), 3.5), math.radians(0), math.radians(180)),
    Part.LineSegment(App.Vector(183.5, 50, 0), App.Vector(183.5, 40, 0)),
    Part.ArcOfCircle(Part.Circle(App.Vector(180, 40, 0), App.Vector(0, 0, 1), 3.5), math.radians(180), math.radians(360)),
], False)
sketch20.addConstraint([
    Sketcher.Constraint("Tangent", 0, 2, 1, 2),
    Sketcher.Constraint("Tangent", 1, 1, 2, 1),
    Sketcher.Constraint("Tangent", 2, 2, 3, 2),
    Sketcher.Constraint("Tangent", 3, 1, 0, 1),
    Sketcher.Constraint("Vertical", 0),
    Sketcher.Constraint("Vertical", 2),
    Sketcher.Constraint("Radius", 1, 3.5),
    Sketcher.Constraint("DistanceY", 0, 1, 0, 2, 10.0),
    Sketcher.Constraint("DistanceX", -1, 1, 1, 3, 180.0),
    Sketcher.Constraint("DistanceY", -1, 1, 1, 3, 50.0),
])
pocket19 = body.newObject("PartDesign::Pocket", "Pocket018")
pocket19.Profile = sketch20
pocket19.Type = "UpToFirst"
pocket19.Reversed = True

# Sketch on XZ plane
sketch21 = body.newObject("Sketcher::SketchObject", "Sketch020")
sketch21.AttachmentSupport = (doc.getObject("XZ_Plane"), [""])
sketch21.MapMode = "FlatFace"
sketch21.AttachmentOffset = App.Placement(App.Vector(0, 0, -3), App.Rotation())
sketch21.addGeometry([
    Part.LineSegment(App.Vector(183.5, 210, 0), App.Vector(183.5, 200, 0)),
    Part.ArcOfCircle(Part.Circle(App.Vector(180, 200, 0), App.Vector(0, 0, 1), 3.5), math.radians(180), math.radians(360)),
    Part.LineSegment(App.Vector(176.5, 200, 0), App.Vector(176.5, 210, 0)),
    Part.ArcOfCircle(Part.Circle(App.Vector(180, 210, 0), App.Vector(0, 0, 1), 3.5), math.radians(0), math.radians(180)),
], False)
sketch21.addConstraint([
    Sketcher.Constraint("Tangent", 0, 2, 1, 2),
    Sketcher.Constraint("Tangent", 1, 1, 2, 1),
    Sketcher.Constraint("Tangent", 2, 2, 3, 2),
    Sketcher.Constraint("Tangent", 3, 1, 0, 1),
    Sketcher.Constraint("Vertical", 0),
    Sketcher.Constraint("Vertical", 2),
    Sketcher.Constraint("Radius", 1, 3.5),
    Sketcher.Constraint("DistanceY", 0, 2, 0, 1, 10.0),
    Sketcher.Constraint("DistanceX", -1, 1, 1, 3, 180.0),
    Sketcher.Constraint("DistanceY", -1, 1, 1, 3, 200.0),
])
pocket20 = body.newObject("PartDesign::Pocket", "Pocket019")
pocket20.Profile = sketch21
pocket20.Type = "UpToFirst"
pocket20.Reversed = True

# Sketch on XZ plane
sketch22 = body.newObject("Sketcher::SketchObject", "Sketch021")
sketch22.AttachmentSupport = (doc.getObject("XZ_Plane"), [""])
sketch22.MapMode = "FlatFace"
sketch22.AttachmentOffset = App.Placement(App.Vector(0, 0, -3), App.Rotation())
sketch22.addGeometry([
    Part.LineSegment(App.Vector(168.5, 210, 0), App.Vector(168.5, 200, 0)),
    Part.ArcOfCircle(Part.Circle(App.Vector(165, 200, 0), App.Vector(0, 0, 1), 3.5), math.radians(180), math.radians(360)),
    Part.LineSegment(App.Vector(161.5, 200, 0), App.Vector(161.5, 210, 0)),
    Part.ArcOfCircle(Part.Circle(App.Vector(165, 210, 0), App.Vector(0, 0, 1), 3.5), math.radians(0), math.radians(180)),
], False)
sketch22.addConstraint([
    Sketcher.Constraint("Tangent", 0, 2, 1, 2),
    Sketcher.Constraint("Tangent", 1, 1, 2, 1),
    Sketcher.Constraint("Tangent", 2, 2, 3, 2),
    Sketcher.Constraint("Tangent", 3, 1, 0, 1),
    Sketcher.Constraint("Vertical", 0),
    Sketcher.Constraint("Vertical", 2),
    Sketcher.Constraint("Radius", 1, 3.5),
    Sketcher.Constraint("DistanceY", 0, 2, 0, 1, 10.0),
    Sketcher.Constraint("DistanceX", -1, 1, 1, 3, 165.0),
    Sketcher.Constraint("DistanceY", -1, 1, 1, 3, 200.0),
])
pocket21 = body.newObject("PartDesign::Pocket", "Pocket020")
pocket21.Profile = sketch22
pocket21.Type = "UpToFirst"
pocket21.Reversed = True

# Sketch on XZ plane
sketch23 = body.newObject("Sketcher::SketchObject", "Sketch022")
sketch23.AttachmentSupport = (doc.getObject("XZ_Plane"), [""])
sketch23.MapMode = "FlatFace"
sketch23.AttachmentOffset = App.Placement(App.Vector(0, 0, -3), App.Rotation())
sketch23.addGeometry([
    Part.LineSegment(App.Vector(153.5, 210, 0), App.Vector(153.5, 200, 0)),
    Part.ArcOfCircle(Part.Circle(App.Vector(150, 200, 0), App.Vector(0, 0, 1), 3.5), math.radians(180), math.radians(360)),
    Part.LineSegment(App.Vector(146.5, 200, 0), App.Vector(146.5, 210, 0)),
    Part.ArcOfCircle(Part.Circle(App.Vector(150, 210, 0), App.Vector(0, 0, 1), 3.5), math.radians(0), math.radians(180)),
], False)
sketch23.addConstraint([
    Sketcher.Constraint("Tangent", 0, 2, 1, 2),
    Sketcher.Constraint("Tangent", 1, 1, 2, 1),
    Sketcher.Constraint("Tangent", 2, 2, 3, 2),
    Sketcher.Constraint("Tangent", 3, 1, 0, 1),
    Sketcher.Constraint("Vertical", 0),
    Sketcher.Constraint("Vertical", 2),
    Sketcher.Constraint("Radius", 1, 3.5),
    Sketcher.Constraint("DistanceY", 0, 2, 0, 1, 10.0),
    Sketcher.Constraint("DistanceX", -1, 1, 1, 3, 150.0),
    Sketcher.Constraint("DistanceY", -1, 1, 1, 3, 200.0),
])
pocket22 = body.newObject("PartDesign::Pocket", "Pocket021")
pocket22.Profile = sketch23
pocket22.Type = "UpToFirst"
pocket22.Reversed = True

# Sketch on XZ plane
sketch24 = body.newObject("Sketcher::SketchObject", "Sketch023")
sketch24.AttachmentSupport = (doc.getObject("XZ_Plane"), [""])
sketch24.MapMode = "FlatFace"
sketch24.AttachmentOffset = App.Placement(App.Vector(0, 0, -3), App.Rotation())
sketch24.addGeometry([
    Part.LineSegment(App.Vector(0, 192, 0), App.Vector(0, 250, 0)),
    Part.LineSegment(App.Vector(0, 250, 0), App.Vector(40, 250, 0)),
    Part.LineSegment(App.Vector(40, 250, 0), App.Vector(40, 192, 0)),
    Part.LineSegment(App.Vector(40, 192, 0), App.Vector(0, 192, 0)),
], False)
sketch24.addConstraint([
    Sketcher.Constraint("Coincident", 0, 2, 1, 1),
    Sketcher.Constraint("Coincident", 1, 2, 2, 1),
    Sketcher.Constraint("Coincident", 2, 2, 3, 1),
    Sketcher.Constraint("Coincident", 3, 2, 0, 1),
    Sketcher.Constraint("Vertical", 0),
    Sketcher.Constraint("Horizontal", 1),
    Sketcher.Constraint("Vertical", 2),
    Sketcher.Constraint("Horizontal", 3),
    Sketcher.Constraint("PointOnObject", 0, 2, -2),
    Sketcher.Constraint("DistanceX", 1, 1, 1, 2, 40.0),
    Sketcher.Constraint("DistanceY", 0, 1, 0, 2, 58.0),
    Sketcher.Constraint("DistanceY", -1, 1, 0, 2, 250.0),
])
pocket23 = body.newObject("PartDesign::Pocket", "Pocket022")
pocket23.Profile = sketch24
pocket23.Type = "UpToFirst"
pocket23.Reversed = True

# Sketch on XZ plane
sketch25 = body.newObject("Sketcher::SketchObject", "Sketch024")
sketch25.AttachmentSupport = (doc.getObject("XZ_Plane"), [""])
sketch25.MapMode = "FlatFace"
sketch25.AttachmentOffset = App.Placement(App.Vector(0, 0, -3), App.Rotation())
sketch25.addGeometry([
    Part.LineSegment(App.Vector(0, 0, 0), App.Vector(0, 58, 0)),
    Part.LineSegment(App.Vector(0, 58, 0), App.Vector(40, 58, 0)),
    Part.LineSegment(App.Vector(40, 58, 0), App.Vector(40, 0, 0)),
    Part.LineSegment(App.Vector(40, 0, 0), App.Vector(0, 0, 0)),
], False)
sketch25.addConstraint([
    Sketcher.Constraint("Coincident", 0, 2, 1, 1),
    Sketcher.Constraint("Coincident", 1, 2, 2, 1),
    Sketcher.Constraint("Coincident", 2, 2, 3, 1),
    Sketcher.Constraint("Coincident", 3, 2, 0, 1),
    Sketcher.Constraint("Vertical", 0),
    Sketcher.Constraint("Horizontal", 1),
    Sketcher.Constraint("Vertical", 2),
    Sketcher.Constraint("Horizontal", 3),
    Sketcher.Constraint("Coincident", 3, 2, -1, 1),
    Sketcher.Constraint("DistanceX", 1, 1, 1, 2, 40.0),
    Sketcher.Constraint("DistanceY", 0, 1, 0, 2, 58.0),
])
pocket24 = body.newObject("PartDesign::Pocket", "Pocket023")
pocket24.Profile = sketch25
pocket24.Type = "UpToFirst"
pocket24.Reversed = True

doc.recompute()
